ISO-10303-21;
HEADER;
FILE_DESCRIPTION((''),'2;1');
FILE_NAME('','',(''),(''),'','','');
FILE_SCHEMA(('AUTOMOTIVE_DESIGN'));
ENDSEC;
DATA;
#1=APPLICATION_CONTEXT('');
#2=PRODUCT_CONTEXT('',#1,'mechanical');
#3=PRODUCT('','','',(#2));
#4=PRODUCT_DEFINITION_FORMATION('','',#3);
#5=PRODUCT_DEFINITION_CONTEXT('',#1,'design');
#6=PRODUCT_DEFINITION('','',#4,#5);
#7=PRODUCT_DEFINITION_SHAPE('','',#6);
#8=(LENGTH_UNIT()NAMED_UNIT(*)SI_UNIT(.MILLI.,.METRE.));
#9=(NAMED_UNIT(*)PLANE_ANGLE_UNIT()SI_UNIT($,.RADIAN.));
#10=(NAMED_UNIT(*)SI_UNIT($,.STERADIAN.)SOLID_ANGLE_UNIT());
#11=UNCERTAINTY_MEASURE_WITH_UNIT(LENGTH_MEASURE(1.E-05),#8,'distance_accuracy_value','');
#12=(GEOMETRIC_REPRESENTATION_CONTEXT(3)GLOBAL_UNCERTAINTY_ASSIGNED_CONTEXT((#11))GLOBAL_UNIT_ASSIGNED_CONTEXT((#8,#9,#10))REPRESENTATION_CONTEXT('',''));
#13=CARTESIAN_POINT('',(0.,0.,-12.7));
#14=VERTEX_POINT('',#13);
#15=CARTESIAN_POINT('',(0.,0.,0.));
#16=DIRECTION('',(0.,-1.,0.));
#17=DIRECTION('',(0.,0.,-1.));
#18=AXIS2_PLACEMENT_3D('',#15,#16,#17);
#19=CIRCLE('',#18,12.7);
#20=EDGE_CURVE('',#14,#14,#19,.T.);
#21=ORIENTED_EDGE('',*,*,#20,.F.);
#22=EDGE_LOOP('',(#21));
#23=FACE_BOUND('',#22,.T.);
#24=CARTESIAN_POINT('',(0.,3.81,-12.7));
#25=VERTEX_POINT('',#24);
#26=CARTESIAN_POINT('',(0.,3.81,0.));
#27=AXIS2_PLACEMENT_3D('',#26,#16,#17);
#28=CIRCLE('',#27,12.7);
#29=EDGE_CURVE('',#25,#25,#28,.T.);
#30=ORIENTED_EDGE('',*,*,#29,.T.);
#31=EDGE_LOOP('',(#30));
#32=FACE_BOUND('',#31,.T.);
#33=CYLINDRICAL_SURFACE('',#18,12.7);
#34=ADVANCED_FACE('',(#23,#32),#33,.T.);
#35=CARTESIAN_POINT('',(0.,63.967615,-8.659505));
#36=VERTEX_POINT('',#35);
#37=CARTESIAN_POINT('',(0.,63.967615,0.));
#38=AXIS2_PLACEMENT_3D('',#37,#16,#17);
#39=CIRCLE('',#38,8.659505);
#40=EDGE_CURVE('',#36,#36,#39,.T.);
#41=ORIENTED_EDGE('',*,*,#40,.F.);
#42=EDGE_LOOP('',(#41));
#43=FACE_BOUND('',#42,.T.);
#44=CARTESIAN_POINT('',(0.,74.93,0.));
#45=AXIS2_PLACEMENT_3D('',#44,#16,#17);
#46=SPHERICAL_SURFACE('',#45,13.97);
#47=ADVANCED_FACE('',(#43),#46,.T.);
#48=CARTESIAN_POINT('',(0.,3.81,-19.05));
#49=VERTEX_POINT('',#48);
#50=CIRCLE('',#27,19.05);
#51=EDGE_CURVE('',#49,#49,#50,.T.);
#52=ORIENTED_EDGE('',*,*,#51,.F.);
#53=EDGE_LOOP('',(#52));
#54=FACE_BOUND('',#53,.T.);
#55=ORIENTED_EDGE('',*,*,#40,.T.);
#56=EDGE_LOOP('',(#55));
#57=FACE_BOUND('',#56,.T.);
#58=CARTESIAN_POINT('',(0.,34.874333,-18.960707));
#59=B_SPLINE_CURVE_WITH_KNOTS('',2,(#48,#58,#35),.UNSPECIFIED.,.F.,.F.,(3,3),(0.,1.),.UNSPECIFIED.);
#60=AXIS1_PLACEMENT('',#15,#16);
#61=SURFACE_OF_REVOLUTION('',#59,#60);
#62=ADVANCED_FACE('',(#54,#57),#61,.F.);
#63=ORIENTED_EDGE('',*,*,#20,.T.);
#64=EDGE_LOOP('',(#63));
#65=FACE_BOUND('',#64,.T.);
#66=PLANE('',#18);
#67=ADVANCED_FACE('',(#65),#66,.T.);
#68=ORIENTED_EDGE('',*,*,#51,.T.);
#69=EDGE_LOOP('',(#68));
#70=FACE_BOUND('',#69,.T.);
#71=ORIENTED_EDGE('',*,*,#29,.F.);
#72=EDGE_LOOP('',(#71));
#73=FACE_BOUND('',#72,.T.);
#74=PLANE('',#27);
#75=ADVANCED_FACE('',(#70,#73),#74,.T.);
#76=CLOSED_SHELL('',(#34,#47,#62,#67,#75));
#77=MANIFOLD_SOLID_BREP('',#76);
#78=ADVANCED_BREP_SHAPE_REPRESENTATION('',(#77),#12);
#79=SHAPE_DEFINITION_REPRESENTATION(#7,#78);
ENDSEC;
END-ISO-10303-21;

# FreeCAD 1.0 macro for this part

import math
import FreeCAD as App
import Part
import Sketcher
from FreeCAD import Vector
Q = App.Units.Quantity

doc = App.newDocument("Part")
body = doc.addObject("PartDesign::Body", "Body")

# Sketch on YZ plane
sketch1 = doc.addObject("Sketcher::SketchObject", "Sketch")
body.addObject(sketch1)
sketch1.AttachmentSupport = (doc.YZ_Plane, [""])
sketch1.MapMode = "FlatFace"
sketch1.addGeometry([
    Part.LineSegment(Vector(88.9, 0, 0), Vector(0, 0, 0)),  # 0
    Part.LineSegment(Vector(0, 0, 0), Vector(0, -12.7, 0)),  # 1
    Part.LineSegment(Vector(0, -12.7, 0), Vector(3.81, -12.7, 0)),  # 2
    Part.LineSegment(Vector(3.81, -12.7, 0), Vector(3.81, -19.05, 0)),  # 3
    Part.BSplineCurve([Vector(3.81, -19.05, 0), Vector(34.874333, -18.960707, 0), Vector(63.967615, -8.659505, 0)], [3, 3], [0, 1], False, 2, [1, 1, 1], False),  # 4
    Part.ArcOfCircle(Part.Circle(Vector(74.93, 0, 0), Vector(0, 0, 1), 13.97), math.radians(-141.693772), math.radians(0)),  # 5
], False)
sketch1.addConstraint([
    Sketcher.Constraint("Block", 4),
    Sketcher.Constraint("Coincident", 0, 2, 1, 1),
    Sketcher.Constraint("Coincident", 1, 2, 2, 1),
    Sketcher.Constraint("Coincident", 2, 2, 3, 1),
    Sketcher.Constraint("Coincident", 3, 2, 4, 1),
    Sketcher.Constraint("Coincident", 4, 2, 5, 1),
    Sketcher.Constraint("Coincident", 5, 2, 0, 1),
    Sketcher.Constraint("Horizontal", 0),
    Sketcher.Constraint("Vertical", 1),
    Sketcher.Constraint("Horizontal", 2),
    Sketcher.Constraint("Vertical", 3),
    Sketcher.Constraint("Coincident", 0, 2, -1, 1),
    Sketcher.Constraint("PointOnObject", 5, 3, -1),
    Sketcher.Constraint("Radius", 5, Q("0.55 in")),
    Sketcher.Constraint("DistanceY", 1, 2, 1, 1, Q("0.5 in")),
])
revolution = doc.addObject("PartDesign::Revolution", "Revolution")
body.addObject(revolution)
revolution.Profile = sketch1
revolution.ReferenceAxis = (sketch1, ["H_Axis"])
revolution.Angle = 360

doc.recompute()
